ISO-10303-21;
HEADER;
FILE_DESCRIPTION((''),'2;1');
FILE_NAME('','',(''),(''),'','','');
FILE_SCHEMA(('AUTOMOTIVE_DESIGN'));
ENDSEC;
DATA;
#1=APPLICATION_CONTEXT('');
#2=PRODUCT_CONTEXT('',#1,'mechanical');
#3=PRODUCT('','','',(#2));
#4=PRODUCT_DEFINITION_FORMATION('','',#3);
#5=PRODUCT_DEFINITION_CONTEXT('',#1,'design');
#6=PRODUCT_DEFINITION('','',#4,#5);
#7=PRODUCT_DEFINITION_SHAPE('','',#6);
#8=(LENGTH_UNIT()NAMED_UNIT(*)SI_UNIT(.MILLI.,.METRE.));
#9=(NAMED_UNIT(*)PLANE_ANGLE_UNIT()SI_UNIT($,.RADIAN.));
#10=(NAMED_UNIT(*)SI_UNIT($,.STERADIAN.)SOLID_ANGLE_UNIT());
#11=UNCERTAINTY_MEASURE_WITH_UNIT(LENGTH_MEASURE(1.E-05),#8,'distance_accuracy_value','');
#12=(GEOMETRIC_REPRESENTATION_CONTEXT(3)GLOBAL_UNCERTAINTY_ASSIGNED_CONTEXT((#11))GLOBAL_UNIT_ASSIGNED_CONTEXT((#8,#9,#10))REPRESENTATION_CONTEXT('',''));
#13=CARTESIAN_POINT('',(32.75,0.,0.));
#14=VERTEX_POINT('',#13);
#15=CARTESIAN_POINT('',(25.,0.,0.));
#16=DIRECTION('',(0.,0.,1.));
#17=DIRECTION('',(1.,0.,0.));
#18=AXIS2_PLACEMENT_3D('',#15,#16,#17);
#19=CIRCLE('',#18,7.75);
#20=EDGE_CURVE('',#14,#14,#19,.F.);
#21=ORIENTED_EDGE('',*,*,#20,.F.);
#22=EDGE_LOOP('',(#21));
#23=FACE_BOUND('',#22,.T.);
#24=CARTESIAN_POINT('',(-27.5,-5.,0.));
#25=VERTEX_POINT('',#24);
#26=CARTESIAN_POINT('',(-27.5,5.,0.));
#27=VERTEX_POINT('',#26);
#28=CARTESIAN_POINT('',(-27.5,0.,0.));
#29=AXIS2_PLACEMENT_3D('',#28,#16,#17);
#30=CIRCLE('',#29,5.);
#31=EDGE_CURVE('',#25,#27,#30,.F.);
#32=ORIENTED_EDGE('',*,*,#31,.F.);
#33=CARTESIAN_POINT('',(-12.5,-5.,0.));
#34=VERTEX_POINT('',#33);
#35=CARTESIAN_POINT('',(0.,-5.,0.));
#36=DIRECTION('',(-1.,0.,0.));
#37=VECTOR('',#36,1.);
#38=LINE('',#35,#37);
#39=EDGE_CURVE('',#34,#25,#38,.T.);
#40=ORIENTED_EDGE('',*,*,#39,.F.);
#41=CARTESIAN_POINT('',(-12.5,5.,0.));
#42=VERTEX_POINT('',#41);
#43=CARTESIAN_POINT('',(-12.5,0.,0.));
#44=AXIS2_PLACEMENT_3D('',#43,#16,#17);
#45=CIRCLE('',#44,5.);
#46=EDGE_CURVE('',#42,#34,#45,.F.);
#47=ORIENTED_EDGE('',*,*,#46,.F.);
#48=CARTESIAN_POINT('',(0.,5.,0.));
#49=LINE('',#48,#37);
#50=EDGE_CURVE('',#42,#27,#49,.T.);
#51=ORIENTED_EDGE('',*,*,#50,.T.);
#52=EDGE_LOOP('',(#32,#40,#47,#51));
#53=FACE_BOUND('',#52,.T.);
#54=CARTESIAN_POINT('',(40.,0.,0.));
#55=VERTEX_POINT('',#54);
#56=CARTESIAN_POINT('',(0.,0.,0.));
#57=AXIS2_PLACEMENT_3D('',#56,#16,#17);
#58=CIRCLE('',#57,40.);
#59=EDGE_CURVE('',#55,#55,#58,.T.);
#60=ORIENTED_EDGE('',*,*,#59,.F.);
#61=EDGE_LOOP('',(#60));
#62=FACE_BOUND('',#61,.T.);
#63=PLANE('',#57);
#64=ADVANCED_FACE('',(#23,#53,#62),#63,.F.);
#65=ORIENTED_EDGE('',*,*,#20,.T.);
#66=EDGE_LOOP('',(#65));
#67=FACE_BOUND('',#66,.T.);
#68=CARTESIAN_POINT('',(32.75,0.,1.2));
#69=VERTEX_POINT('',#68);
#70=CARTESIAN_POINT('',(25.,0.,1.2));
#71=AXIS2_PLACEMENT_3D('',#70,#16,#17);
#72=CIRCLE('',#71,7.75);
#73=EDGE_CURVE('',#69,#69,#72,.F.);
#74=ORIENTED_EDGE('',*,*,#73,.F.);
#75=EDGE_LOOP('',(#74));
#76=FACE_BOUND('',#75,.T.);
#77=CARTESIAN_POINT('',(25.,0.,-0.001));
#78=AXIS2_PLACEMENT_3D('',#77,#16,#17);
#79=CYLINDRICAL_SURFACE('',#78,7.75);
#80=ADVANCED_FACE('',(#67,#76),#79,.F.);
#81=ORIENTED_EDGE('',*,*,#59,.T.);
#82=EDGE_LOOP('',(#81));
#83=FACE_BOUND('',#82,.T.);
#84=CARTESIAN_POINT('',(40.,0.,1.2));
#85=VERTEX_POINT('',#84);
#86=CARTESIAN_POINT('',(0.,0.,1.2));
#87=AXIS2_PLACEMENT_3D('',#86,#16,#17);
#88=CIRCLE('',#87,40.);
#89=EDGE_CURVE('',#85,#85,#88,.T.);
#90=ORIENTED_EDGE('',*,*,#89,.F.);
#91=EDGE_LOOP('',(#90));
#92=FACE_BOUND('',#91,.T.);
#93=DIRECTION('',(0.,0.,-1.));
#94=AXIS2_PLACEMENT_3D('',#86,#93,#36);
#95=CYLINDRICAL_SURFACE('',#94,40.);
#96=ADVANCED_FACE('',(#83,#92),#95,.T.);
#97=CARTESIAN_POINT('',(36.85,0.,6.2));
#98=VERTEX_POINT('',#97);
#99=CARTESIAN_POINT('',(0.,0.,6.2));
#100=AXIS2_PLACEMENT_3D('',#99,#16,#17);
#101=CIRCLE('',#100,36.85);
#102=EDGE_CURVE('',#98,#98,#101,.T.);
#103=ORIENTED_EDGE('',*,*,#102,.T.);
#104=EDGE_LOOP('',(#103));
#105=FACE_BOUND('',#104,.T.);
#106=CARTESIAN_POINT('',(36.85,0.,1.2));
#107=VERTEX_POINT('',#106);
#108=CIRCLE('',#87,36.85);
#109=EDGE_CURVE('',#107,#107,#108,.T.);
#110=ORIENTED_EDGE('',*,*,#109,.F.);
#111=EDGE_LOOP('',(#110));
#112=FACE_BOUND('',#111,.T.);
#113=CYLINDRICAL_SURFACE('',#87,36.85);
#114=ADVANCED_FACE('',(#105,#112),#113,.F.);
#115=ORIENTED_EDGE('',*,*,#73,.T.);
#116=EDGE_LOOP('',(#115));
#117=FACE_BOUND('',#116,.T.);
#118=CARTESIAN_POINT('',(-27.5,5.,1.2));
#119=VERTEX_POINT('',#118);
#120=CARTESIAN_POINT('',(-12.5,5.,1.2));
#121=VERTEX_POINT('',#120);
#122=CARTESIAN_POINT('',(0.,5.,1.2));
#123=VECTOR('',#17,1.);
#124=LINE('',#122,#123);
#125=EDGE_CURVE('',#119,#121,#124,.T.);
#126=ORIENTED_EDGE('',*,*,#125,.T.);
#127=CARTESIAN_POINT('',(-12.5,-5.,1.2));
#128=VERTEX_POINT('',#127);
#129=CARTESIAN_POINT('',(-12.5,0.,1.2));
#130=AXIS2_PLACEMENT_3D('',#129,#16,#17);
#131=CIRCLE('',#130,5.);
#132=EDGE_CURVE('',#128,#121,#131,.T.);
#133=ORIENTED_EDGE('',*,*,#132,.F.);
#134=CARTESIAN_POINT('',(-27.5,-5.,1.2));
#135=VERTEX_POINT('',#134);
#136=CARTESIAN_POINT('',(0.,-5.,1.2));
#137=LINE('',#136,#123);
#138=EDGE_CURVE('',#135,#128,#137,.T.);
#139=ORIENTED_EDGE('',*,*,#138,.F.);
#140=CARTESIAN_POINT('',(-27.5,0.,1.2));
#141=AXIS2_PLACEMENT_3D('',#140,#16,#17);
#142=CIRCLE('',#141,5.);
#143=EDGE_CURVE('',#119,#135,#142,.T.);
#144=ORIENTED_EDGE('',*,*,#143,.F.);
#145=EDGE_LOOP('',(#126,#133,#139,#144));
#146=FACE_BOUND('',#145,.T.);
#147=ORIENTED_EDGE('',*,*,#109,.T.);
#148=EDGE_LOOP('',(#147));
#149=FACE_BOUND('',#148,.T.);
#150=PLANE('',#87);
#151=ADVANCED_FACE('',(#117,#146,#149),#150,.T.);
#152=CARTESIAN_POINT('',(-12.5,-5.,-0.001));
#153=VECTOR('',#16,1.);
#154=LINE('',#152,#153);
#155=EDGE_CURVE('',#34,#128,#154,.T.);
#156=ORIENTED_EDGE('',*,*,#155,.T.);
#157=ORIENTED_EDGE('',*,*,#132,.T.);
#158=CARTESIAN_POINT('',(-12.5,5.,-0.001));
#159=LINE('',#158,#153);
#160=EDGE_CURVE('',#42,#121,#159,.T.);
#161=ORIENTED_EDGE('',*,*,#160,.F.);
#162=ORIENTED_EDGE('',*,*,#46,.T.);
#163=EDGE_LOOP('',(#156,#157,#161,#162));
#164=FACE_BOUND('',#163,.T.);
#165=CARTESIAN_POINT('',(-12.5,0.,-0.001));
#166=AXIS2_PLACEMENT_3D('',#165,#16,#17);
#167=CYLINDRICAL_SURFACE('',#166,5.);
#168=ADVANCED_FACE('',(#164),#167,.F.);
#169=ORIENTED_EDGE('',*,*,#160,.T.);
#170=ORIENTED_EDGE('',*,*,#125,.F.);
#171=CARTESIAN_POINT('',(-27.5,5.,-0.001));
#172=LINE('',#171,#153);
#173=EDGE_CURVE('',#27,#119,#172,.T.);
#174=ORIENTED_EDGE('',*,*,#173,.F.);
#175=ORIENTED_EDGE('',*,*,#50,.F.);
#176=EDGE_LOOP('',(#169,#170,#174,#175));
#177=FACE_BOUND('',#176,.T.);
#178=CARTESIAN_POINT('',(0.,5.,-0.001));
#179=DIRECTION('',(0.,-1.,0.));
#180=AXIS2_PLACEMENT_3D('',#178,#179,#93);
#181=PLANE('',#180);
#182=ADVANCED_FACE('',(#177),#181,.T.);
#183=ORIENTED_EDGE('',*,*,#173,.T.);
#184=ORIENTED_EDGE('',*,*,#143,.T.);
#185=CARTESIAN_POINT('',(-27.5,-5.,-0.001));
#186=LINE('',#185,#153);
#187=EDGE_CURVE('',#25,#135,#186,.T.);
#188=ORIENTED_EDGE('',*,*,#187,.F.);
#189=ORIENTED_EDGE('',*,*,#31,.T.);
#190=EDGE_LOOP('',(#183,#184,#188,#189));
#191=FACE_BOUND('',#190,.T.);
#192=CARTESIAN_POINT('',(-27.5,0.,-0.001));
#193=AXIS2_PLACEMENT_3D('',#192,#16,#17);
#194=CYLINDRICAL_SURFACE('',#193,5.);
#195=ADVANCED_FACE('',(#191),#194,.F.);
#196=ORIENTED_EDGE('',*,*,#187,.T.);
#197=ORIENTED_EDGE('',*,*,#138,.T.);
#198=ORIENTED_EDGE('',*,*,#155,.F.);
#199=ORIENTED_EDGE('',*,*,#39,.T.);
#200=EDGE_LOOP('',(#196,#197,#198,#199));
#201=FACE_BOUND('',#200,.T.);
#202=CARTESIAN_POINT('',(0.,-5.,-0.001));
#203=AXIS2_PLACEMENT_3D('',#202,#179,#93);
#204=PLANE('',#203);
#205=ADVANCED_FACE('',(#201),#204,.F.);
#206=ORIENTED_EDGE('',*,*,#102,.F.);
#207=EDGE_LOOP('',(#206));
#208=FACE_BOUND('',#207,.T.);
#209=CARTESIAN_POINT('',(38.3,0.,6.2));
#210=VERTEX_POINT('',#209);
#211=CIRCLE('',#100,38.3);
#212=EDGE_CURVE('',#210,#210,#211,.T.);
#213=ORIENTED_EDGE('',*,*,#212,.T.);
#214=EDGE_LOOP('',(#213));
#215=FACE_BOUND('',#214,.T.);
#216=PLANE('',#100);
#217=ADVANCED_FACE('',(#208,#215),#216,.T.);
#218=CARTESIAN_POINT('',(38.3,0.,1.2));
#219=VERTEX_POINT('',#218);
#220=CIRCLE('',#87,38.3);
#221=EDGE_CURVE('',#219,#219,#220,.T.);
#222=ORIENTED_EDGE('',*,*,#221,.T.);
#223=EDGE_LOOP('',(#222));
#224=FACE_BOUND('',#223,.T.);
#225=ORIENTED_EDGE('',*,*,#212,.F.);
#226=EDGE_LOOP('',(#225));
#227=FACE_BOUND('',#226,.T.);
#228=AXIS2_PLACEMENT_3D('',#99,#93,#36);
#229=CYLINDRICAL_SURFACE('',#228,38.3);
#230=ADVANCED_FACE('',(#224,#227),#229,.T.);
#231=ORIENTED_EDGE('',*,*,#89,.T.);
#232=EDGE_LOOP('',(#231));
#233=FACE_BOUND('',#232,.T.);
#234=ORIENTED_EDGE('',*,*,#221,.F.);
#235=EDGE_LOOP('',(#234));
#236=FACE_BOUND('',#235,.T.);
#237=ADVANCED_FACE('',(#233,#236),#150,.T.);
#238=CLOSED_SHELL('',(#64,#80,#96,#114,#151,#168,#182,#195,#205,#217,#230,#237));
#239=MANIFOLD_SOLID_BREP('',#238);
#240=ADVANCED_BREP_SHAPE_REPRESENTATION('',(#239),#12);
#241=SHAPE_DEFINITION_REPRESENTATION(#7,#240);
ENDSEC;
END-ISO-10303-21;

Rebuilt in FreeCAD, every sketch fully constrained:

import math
import FreeCAD as App
import Part
import Sketcher
from FreeCAD import Vector

doc = App.newDocument("Part")
body = doc.addObject("PartDesign::Body", "Body")

# Sketch on XY plane
sketch1 = body.newObject("Sketcher::SketchObject", "Sketch")
sketch1.AttachmentSupport = (doc.getObject("XY_Plane"), [""])
sketch1.MapMode = "FlatFace"
sketch1.addGeometry(Part.Circle(Vector(0, 0, 0), Vector(0, 0, 1), 40), False)
sketch1.addConstraint(Sketcher.Constraint("Coincident", 0, 3, -1, 1))
sketch1.addConstraint(Sketcher.Constraint("Diameter", 0, 80.0))
pad1 = body.newObject("PartDesign::Pad", "Pad")
pad1.Profile = sketch1
pad1.Length = 1.2

# Sketch on XY plane
sketch2 = body.newObject("Sketcher::SketchObject", "Sketch001")
sketch2.AttachmentSupport = (doc.getObject("XY_Plane"), [""])
sketch2.MapMode = "FlatFace"
sketch2.AttachmentOffset = App.Placement(Vector(0, 0, 1.2), App.Rotation())
sketch2.addGeometry(Part.Circle(Vector(25, 0, 0), Vector(0, 0, 1), 8), False)
sketch2.addConstraint(Sketcher.Constraint("PointOnObject", 0, 3, -1))
sketch2.addConstraint(Sketcher.Constraint("Diameter", 0, 15.5))
sketch2.addConstraint(Sketcher.Constraint("DistanceX", -1, 1, 0, 3, 25.0))
pocket1 = body.newObject("PartDesign::Pocket", "Pocket")
pocket1.Profile = sketch2
pocket1.Type = "UpToFirst"

# Sketch on XY plane
sketch3 = body.newObject("Sketcher::SketchObject", "Sketch002")
sketch3.AttachmentSupport = (doc.getObject("XY_Plane"), [""])
sketch3.MapMode = "FlatFace"
sketch3.AttachmentOffset = App.Placement(Vector(0, 0, 1.2), App.Rotation())
sketch3.addGeometry(Part.LineSegment(Vector(-12, 5, 0), Vector(-28, 5, 0)), False)
sketch3.addGeometry(Part.ArcOfCircle(Part.Circle(Vector(-28, 0, 0), Vector(0, 0, 1), 5), math.radians(90), math.radians(270)), False)
sketch3.addGeometry(Part.LineSegment(Vector(-28, -5, 0), Vector(-12, -5, 0)), False)
sketch3.addGeometry(Part.ArcOfCircle(Part.Circle(Vector(-12, 0, 0), Vector(0, 0, 1), 5), math.radians(-90), math.radians(90)), False)
sketch3.addConstraint(Sketcher.Constraint("Tangent", 0, 2, 1, 1))
sketch3.addConstraint(Sketcher.Constraint("Tangent", 1, 2, 2, 1))
sketch3.addConstraint(Sketcher.Constraint("Tangent", 2, 2, 3, 1))
sketch3.addConstraint(Sketcher.Constraint("Tangent", 3, 2, 0, 1))
sketch3.addConstraint(Sketcher.Constraint("Horizontal", 0))
sketch3.addConstraint(Sketcher.Constraint("Horizontal", 2))
sketch3.addConstraint(Sketcher.Constraint("PointOnObject", 1, 3, -1))
sketch3.addConstraint(Sketcher.Constraint("Radius", 1, 5.0))
sketch3.addConstraint(Sketcher.Constraint("DistanceX", 0, 2, 0, 1, 15.0))
sketch3.addConstraint(Sketcher.Constraint("DistanceX", 1, 3, -1, 1, 27.5))
pocket2 = body.newObject("PartDesign::Pocket", "Pocket001")
pocket2.Profile = sketch3
pocket2.Type = "UpToFirst"

# Sketch on XY plane
sketch4 = body.newObject("Sketcher::SketchObject", "Sketch003")
sketch4.AttachmentSupport = (doc.getObject("XY_Plane"), [""])
sketch4.MapMode = "FlatFace"
sketch4.AttachmentOffset = App.Placement(Vector(0, 0, 1.2), App.Rotation())
sketch4.addGeometry(Part.Circle(Vector(0, 0, 0), Vector(0, 0, 1), 38), False)
sketch4.addConstraint(Sketcher.Constraint("Coincident", 0, 3, -1, 1))
sketch4.addConstraint(Sketcher.Constraint("Diameter", 0, 76.6))
pad2 = body.newObject("PartDesign::Pad", "Pad001")
pad2.Profile = sketch4
pad2.Length = 5

# Sketch on XY plane
sketch5 = body.newObject("Sketcher::SketchObject", "Sketch004")
sketch5.AttachmentSupport = (doc.getObject("XY_Plane"), [""])
sketch5.MapMode = "FlatFace"
sketch5.AttachmentOffset = App.Placement(Vector(0, 0, 6.2), App.Rotation())
sketch5.addGeometry(Part.Circle(Vector(0, 0, 0), Vector(0, 0, 1), 37), False)
sketch5.addConstraint(Sketcher.Constraint("Coincident", 0, 3, -1, 1))
sketch5.addConstraint(Sketcher.Constraint("Diameter", 0, 73.7))
pocket3 = body.newObject("PartDesign::Pocket", "Pocket002")
pocket3.Profile = sketch5
pocket3.Length = 5

doc.recompute()
